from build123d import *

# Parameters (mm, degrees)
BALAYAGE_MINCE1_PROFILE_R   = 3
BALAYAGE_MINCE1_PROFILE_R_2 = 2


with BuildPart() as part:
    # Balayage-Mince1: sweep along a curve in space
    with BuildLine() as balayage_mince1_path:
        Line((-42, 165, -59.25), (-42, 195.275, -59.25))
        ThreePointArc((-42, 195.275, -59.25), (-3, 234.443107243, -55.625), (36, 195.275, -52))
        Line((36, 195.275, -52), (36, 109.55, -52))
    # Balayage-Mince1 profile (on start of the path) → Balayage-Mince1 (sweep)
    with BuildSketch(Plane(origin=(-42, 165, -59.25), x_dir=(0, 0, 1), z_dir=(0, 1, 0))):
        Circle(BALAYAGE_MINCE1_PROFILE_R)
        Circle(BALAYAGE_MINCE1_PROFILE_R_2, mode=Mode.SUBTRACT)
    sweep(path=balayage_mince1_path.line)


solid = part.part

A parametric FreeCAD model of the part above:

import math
import FreeCAD as App
import Part
import Sketcher
from FreeCAD import Vector

doc = App.newDocument("Part")
body = doc.addObject("PartDesign::Body", "Body")

# Sketch on XZ plane
sketch1 = doc.addObject("Sketcher::SketchObject", "Sketch")
body.addObject(sketch1)
sketch1.AttachmentSupport = (doc.XZ_Plane, [""])
sketch1.MapMode = "FlatFace"
sketch1.AttachmentOffset = App.Placement(Vector(0, 0, -165), App.Rotation())
sketch1.addGeometry([
    Part.Circle(Vector(-42, -59.2, 0), Vector(0, 0, 1), 3),
    Part.Circle(Vector(-42, -59.2, 0), Vector(0, 0, 1), 2),
], False)
sketch1.addConstraint([
    Sketcher.Constraint("Coincident", 1, 3, 0, 3),
    Sketcher.Constraint("Diameter", 0, 6.0),
    Sketcher.Constraint("Diameter", 1, 4.0),
    Sketcher.Constraint("DistanceX", 0, 3, -1, 1, 42.0),
    Sketcher.Constraint("DistanceY", 0, 3, -1, 1, 59.25),
])

# Sketch on an angled plane
sketch2 = doc.addObject("Sketcher::SketchObject", "Sketch001")
body.addObject(sketch2)
sketch2.Placement = App.Placement(Vector(5.10029, 0, -54.872088), App.Rotation(Vector(-0.995708058, 0, -0.092549787), Vector(0, 1, 0), Vector(0.092549787, 0, -0.995708058), "ZXY"))
sketch2.addGeometry([
    Part.LineSegment(Vector(47, 165, 0), Vector(47, 195, 0)),
    Part.ArcOfCircle(Part.Circle(Vector(8, 195, 0), Vector(0, 0, 1), 39), math.radians(0), math.radians(180)),
    Part.LineSegment(Vector(-31, 195, 0), Vector(-31, 110, 0)),
], False)
sketch2.addConstraint([
    Sketcher.Constraint("Tangent", 0, 2, 1, 1),
    Sketcher.Constraint("Tangent", 1, 2, 2, 1),
    Sketcher.Constraint("Vertical", 0),
    Sketcher.Constraint("Vertical", 2),
    Sketcher.Constraint("DistanceY", -1, 1, 0, 1, 165.0),
    Sketcher.Constraint("DistanceY", 0, 1, 0, 2, 30.275),
    Sketcher.Constraint("DistanceY", 2, 2, 2, 1, 85.725),
    Sketcher.Constraint("Radius", 1, 39.168107),
    Sketcher.Constraint("DistanceX", 1, 2, -1, 1, 31.032901),
])
doc.recompute()

additivepipe = doc.addObject("PartDesign::AdditivePipe", "AdditivePipe")
body.addObject(additivepipe)
additivepipe.Profile = sketch1
additivepipe.Spine = (sketch2, ["Edge1", "Edge2", "Edge3"])

doc.recompute()
